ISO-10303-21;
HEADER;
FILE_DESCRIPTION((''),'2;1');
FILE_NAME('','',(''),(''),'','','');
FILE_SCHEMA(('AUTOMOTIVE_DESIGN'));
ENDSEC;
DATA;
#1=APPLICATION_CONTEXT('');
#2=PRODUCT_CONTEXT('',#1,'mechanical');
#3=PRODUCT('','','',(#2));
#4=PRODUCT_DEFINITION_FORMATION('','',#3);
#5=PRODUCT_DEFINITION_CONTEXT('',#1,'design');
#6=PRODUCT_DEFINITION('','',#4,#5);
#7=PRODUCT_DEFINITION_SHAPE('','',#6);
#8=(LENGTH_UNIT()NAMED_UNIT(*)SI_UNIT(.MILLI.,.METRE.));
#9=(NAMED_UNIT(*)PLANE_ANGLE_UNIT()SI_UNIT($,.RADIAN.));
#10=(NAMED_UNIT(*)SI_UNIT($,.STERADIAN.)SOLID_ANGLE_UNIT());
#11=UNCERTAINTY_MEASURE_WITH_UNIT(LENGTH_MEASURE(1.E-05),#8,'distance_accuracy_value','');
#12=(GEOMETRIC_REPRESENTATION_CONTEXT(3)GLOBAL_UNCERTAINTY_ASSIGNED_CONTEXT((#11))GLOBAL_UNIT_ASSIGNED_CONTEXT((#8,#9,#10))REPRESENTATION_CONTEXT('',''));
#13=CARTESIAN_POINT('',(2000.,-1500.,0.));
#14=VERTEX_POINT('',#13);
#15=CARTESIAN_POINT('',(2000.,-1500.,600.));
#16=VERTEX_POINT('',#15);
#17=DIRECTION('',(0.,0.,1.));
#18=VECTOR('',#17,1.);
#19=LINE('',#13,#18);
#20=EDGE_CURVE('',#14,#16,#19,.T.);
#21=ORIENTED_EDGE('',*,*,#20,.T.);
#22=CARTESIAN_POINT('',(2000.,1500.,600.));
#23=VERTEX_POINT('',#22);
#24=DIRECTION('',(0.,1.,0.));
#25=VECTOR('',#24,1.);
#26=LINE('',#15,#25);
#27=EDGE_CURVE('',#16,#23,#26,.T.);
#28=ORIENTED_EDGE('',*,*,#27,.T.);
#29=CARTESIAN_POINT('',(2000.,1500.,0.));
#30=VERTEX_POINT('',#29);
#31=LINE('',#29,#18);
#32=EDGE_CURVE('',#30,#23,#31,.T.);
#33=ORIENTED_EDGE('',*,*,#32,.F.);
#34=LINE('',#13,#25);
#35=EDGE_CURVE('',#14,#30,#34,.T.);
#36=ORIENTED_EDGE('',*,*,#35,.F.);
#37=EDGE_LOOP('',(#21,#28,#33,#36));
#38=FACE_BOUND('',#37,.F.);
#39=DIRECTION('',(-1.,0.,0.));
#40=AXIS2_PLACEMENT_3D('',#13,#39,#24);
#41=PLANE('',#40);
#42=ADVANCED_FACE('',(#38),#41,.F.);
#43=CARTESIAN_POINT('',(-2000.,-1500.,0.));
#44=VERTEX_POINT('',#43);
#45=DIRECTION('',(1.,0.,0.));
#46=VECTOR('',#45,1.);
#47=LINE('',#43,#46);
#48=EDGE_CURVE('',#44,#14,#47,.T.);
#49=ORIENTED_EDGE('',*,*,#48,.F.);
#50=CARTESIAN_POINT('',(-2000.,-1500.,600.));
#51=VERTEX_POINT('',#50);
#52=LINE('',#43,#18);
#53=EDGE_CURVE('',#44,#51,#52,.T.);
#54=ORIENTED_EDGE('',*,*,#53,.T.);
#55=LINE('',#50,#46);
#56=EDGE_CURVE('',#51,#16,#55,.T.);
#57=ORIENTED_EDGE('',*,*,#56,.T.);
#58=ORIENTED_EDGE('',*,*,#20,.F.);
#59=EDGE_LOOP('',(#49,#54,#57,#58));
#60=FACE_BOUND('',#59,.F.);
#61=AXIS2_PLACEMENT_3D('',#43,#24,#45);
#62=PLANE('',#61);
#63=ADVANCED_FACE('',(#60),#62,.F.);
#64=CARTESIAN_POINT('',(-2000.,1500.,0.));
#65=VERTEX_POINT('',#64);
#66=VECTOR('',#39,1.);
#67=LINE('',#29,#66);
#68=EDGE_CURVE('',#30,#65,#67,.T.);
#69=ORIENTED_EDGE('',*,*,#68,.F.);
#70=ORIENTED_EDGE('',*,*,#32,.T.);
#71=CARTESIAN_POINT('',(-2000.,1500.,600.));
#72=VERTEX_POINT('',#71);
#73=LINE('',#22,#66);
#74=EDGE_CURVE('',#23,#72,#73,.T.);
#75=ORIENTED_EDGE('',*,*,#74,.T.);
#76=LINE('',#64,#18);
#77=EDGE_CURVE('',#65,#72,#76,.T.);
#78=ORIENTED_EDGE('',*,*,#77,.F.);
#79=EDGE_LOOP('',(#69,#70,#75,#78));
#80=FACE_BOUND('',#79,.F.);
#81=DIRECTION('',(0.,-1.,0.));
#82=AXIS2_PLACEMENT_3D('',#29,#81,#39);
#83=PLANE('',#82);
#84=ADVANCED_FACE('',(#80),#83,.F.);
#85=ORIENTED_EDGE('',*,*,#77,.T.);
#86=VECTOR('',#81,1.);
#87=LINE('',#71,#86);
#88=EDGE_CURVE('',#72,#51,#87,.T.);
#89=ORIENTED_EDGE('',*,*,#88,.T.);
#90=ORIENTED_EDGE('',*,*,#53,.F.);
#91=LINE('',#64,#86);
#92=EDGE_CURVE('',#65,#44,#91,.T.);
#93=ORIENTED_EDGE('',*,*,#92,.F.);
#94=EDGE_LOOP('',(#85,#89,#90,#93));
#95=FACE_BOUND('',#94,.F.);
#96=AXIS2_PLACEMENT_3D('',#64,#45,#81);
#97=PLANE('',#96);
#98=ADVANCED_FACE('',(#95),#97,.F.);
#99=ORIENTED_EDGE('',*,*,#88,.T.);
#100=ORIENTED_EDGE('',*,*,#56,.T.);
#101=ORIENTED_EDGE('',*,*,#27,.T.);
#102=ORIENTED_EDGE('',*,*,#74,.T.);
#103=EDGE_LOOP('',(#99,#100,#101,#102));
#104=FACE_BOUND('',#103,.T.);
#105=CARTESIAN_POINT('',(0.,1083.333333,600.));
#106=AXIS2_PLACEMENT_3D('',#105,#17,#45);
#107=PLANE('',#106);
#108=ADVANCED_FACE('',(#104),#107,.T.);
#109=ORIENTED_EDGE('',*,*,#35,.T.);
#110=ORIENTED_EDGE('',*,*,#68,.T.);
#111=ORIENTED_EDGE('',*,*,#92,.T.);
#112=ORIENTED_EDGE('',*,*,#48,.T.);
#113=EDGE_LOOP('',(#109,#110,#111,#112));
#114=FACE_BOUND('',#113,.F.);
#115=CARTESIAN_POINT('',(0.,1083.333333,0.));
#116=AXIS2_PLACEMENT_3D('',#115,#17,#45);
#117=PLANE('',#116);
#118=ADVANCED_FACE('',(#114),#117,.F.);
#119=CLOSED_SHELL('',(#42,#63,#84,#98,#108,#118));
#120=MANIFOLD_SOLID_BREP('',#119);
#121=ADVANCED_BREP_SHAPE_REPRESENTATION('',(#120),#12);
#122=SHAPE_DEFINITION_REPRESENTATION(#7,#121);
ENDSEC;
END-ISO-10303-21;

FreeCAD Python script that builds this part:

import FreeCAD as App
import Part
import Sketcher
from FreeCAD import Vector
Q = App.Units.Quantity

doc = App.newDocument("Part")
body = doc.addObject("PartDesign::Body", "Body")

sketch1 = body.newObject("Sketcher::SketchObject", "Sketch")
sketch1.AttachmentSupport = (doc.getObject("XY_Plane"), [""])
sketch1.MapMode = "FlatFace"
sketch1.addGeometry(Part.LineSegment(Vector(2000, 1500, 0), Vector(-2000, 1500, 0)), False)
sketch1.addGeometry(Part.LineSegment(Vector(-2000, 1500, 0), Vector(-2000, -1500, 0)), False)
sketch1.addGeometry(Part.LineSegment(Vector(-2000, -1500, 0), Vector(2000, -1500, 0)), False)
sketch1.addGeometry(Part.LineSegment(Vector(2000, -1500, 0), Vector(2000, 1500, 0)), False)
sketch1.addConstraint(Sketcher.Constraint("Coincident", 0, 2, 1, 1))
sketch1.addConstraint(Sketcher.Constraint("Coincident", 1, 2, 2, 1))
sketch1.addConstraint(Sketcher.Constraint("Coincident", 2, 2, 3, 1))
sketch1.addConstraint(Sketcher.Constraint("Coincident", 3, 2, 0, 1))
sketch1.addConstraint(Sketcher.Constraint("Horizontal", 0))
sketch1.addConstraint(Sketcher.Constraint("Vertical", 1))
sketch1.addConstraint(Sketcher.Constraint("Horizontal", 2))
sketch1.addConstraint(Sketcher.Constraint("Vertical", 3))
sketch1.addConstraint(Sketcher.Constraint("Symmetric", 0, 2, 2, 2, -1, 1))
sketch1.addConstraint(Sketcher.Constraint("DistanceX", 0, 2, 0, 1, Q("4000 mm")))
sketch1.addConstraint(Sketcher.Constraint("DistanceY", 1, 2, 1, 1, Q("3000 mm")))
pad1 = body.newObject("PartDesign::Pad", "Pad")
pad1.Profile = sketch1
pad1.Length = 600

doc.recompute()
